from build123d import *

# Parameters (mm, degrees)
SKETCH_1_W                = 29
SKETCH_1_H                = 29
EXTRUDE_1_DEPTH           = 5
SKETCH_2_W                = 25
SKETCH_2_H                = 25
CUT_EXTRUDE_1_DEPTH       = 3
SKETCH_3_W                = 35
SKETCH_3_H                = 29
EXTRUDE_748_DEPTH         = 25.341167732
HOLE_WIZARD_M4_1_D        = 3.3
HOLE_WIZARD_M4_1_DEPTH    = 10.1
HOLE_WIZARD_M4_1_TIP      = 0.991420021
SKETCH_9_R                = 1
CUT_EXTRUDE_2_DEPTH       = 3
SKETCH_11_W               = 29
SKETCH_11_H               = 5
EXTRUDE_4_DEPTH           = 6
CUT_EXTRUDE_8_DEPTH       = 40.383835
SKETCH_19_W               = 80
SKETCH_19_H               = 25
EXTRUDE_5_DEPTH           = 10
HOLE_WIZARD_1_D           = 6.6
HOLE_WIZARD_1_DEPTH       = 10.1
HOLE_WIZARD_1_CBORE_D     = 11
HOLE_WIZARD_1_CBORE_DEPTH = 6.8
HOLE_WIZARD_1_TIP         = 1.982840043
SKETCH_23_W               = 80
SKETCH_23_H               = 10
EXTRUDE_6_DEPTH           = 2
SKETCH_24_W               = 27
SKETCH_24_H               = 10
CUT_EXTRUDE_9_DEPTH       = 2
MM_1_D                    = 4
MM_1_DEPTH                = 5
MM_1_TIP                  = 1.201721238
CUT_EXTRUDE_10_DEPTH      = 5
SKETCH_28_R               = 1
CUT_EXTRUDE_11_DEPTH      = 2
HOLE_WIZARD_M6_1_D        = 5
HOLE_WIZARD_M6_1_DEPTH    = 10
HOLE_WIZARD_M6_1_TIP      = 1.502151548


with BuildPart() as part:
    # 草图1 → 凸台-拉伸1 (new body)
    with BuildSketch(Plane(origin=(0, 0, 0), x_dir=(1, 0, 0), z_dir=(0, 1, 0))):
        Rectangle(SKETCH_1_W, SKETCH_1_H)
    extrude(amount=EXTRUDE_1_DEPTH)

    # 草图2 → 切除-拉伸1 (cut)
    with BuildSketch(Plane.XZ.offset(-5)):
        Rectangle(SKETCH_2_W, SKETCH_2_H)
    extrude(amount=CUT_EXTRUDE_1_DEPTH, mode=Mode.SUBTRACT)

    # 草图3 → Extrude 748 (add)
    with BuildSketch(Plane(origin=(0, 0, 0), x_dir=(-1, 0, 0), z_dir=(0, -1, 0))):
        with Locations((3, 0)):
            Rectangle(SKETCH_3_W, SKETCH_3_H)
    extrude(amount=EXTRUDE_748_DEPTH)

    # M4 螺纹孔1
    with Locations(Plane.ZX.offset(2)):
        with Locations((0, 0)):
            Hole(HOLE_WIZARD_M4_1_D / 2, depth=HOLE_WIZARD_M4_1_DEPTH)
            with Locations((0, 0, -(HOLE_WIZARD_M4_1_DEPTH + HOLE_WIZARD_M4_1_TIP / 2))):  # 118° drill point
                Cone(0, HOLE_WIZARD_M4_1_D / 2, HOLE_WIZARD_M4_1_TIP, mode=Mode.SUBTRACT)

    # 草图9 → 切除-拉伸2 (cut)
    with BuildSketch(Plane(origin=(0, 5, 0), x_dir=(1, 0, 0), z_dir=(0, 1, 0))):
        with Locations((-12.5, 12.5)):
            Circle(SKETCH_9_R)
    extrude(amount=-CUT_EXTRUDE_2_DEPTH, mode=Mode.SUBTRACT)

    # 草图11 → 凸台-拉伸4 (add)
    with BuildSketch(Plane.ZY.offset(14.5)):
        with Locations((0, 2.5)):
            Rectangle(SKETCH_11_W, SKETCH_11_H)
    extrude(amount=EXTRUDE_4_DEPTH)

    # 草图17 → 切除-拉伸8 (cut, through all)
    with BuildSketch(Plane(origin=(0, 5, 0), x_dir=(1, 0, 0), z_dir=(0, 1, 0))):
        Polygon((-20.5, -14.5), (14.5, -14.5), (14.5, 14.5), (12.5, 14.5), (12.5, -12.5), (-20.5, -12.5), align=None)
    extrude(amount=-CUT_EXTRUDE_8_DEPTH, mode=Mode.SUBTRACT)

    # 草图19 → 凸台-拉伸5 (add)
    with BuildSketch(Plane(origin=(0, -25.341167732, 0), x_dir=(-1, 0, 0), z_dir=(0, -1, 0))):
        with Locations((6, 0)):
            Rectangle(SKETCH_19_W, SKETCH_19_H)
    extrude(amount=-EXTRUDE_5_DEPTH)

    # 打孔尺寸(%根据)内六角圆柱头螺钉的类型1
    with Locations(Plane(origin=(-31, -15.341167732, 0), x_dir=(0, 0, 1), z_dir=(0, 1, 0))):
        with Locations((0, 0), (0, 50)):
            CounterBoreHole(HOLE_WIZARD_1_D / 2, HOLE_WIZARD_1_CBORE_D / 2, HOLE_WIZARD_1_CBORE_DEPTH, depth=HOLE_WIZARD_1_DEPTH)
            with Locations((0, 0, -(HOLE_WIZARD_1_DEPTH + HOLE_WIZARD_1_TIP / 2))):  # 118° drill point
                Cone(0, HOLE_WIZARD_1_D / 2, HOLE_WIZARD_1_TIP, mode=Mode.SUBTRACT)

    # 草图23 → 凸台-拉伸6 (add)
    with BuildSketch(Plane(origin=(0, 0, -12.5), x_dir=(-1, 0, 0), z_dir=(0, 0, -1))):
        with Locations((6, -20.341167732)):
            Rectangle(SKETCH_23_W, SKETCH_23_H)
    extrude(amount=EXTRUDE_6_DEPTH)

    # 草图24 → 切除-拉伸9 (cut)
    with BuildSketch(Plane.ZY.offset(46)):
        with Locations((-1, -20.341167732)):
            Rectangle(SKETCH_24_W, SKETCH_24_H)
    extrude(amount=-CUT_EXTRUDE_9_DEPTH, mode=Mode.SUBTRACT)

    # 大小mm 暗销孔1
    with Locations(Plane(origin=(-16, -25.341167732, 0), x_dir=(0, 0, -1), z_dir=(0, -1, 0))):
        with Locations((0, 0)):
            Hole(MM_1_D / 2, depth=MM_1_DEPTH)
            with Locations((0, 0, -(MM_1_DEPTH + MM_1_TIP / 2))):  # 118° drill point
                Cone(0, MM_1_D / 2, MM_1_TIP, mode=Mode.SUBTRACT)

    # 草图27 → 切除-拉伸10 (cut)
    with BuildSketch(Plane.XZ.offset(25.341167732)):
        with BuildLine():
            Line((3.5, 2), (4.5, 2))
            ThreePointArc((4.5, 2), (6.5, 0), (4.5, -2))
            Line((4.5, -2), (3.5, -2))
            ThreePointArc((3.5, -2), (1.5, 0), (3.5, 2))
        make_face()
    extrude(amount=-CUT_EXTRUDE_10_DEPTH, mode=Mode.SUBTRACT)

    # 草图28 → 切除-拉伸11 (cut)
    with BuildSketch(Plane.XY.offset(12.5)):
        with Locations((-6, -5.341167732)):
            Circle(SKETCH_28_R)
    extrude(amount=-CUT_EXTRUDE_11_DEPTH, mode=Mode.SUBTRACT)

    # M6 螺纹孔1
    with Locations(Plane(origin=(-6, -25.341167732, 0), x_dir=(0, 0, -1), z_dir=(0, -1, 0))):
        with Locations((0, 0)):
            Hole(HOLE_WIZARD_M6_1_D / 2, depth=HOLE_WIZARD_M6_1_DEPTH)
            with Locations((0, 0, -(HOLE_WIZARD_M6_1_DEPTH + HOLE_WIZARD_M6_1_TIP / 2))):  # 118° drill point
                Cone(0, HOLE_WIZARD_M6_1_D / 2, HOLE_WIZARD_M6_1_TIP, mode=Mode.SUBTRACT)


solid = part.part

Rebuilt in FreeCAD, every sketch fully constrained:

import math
import FreeCAD as App
import Part
import Sketcher

V = App.Vector


def add_polygon(sketch, points):
    """Adds a closed chain of lines whose ends are joined by coincident constraints."""
    first, n = sketch.GeometryCount, len(points)
    for a, b in zip(points, points[1:] + points[:1]):
        sketch.addGeometry(Part.LineSegment(App.Vector(*a, 0), App.Vector(*b, 0)), False)
    for i in range(n):
        sketch.addConstraint(Sketcher.Constraint("Coincident", first + i, 2, first + (i + 1) % n, 1))

doc = App.newDocument("Part")
body = doc.addObject("PartDesign::Body", "Body")

# Sketch on XZ plane
sketch1 = body.newObject("Sketcher::SketchObject", "Sketch")
sketch1.AttachmentSupport = (doc.getObject("XZ_Plane"), [""])
sketch1.MapMode = "FlatFace"
add_polygon(sketch1, [(-14, -14), (-14, 14), (14, 14), (14, -14)])  # lines 0-3
sketch1.addConstraint(Sketcher.Constraint("Vertical", 0))
sketch1.addConstraint(Sketcher.Constraint("Horizontal", 1))
sketch1.addConstraint(Sketcher.Constraint("Vertical", 2))
sketch1.addConstraint(Sketcher.Constraint("Horizontal", 3))
sketch1.addConstraint(Sketcher.Constraint("Symmetric", 0, 2, 2, 2, -1, 1))
sketch1.addConstraint(Sketcher.Constraint("Equal", 3, 0))
sketch1.addConstraint(Sketcher.Constraint("DistanceX", 1, 1, 1, 2, 29.0))
pad1 = body.newObject("PartDesign::Pad", "Pad")
pad1.Profile = sketch1
pad1.Length = 5
pad1.Reversed = True

# Sketch on XZ plane
sketch2 = body.newObject("Sketcher::SketchObject", "Sketch001")
sketch2.AttachmentSupport = (doc.getObject("XZ_Plane"), [""])
sketch2.MapMode = "FlatFace"
sketch2.AttachmentOffset = App.Placement(V(0, 0, -5), App.Rotation())
add_polygon(sketch2, [(-12, 12), (-12, -12), (12, -12), (12, 12)])  # lines 0-3
sketch2.addConstraint(Sketcher.Constraint("Vertical", 0))
sketch2.addConstraint(Sketcher.Constraint("Horizontal", 1))
sketch2.addConstraint(Sketcher.Constraint("Vertical", 2))
sketch2.addConstraint(Sketcher.Constraint("Horizontal", 3))
sketch2.addConstraint(Sketcher.Constraint("Symmetric", 0, 2, 2, 2, -1, 1))
sketch2.addConstraint(Sketcher.Constraint("Equal", 3, 0))
sketch2.addConstraint(Sketcher.Constraint("DistanceX", 1, 1, 1, 2, 25.0))
pocket1 = body.newObject("PartDesign::Pocket", "Pocket")
pocket1.Profile = sketch2
pocket1.Length = 3
pocket1.Reversed = True

# Sketch on XZ plane
sketch3 = body.newObject("Sketcher::SketchObject", "Sketch002")
sketch3.AttachmentSupport = (doc.getObject("XZ_Plane"), [""])
sketch3.MapMode = "FlatFace"
add_polygon(sketch3, [(14, -14), (14, 14), (-20, 14), (-20, -14)])  # lines 0-3
sketch3.addConstraint(Sketcher.Constraint("Vertical", 0))
sketch3.addConstraint(Sketcher.Constraint("Horizontal", 1))
sketch3.addConstraint(Sketcher.Constraint("Vertical", 2))
sketch3.addConstraint(Sketcher.Constraint("Horizontal", 3))
sketch3.addConstraint(Sketcher.Constraint("DistanceX", 1, 2, 1, 1, 35.0))
sketch3.addConstraint(Sketcher.Constraint("DistanceY", 0, 1, 0, 2, 29.0))
sketch3.addConstraint(Sketcher.Constraint("DistanceX", -1, 1, 0, 2, 14.5))
sketch3.addConstraint(Sketcher.Constraint("DistanceY", -1, 1, 0, 2, 14.5))
pad2 = body.newObject("PartDesign::Pad", "Pad001")
pad2.Profile = sketch3
pad2.Length = 25.341168

# Sketch on XZ plane
sketch4 = body.newObject("Sketcher::SketchObject", "Sketch003")
sketch4.AttachmentSupport = (doc.getObject("XZ_Plane"), [""])
sketch4.MapMode = "FlatFace"
sketch4.AttachmentOffset = App.Placement(V(0, 0, -2), App.Rotation())
sketch4.addGeometry(Part.Circle(V(0, 0, 0), V(0, 0, 1), 1.6), False)
sketch4.addConstraint(Sketcher.Constraint("Coincident", 0, 3, -1, 1))
sketch4.addConstraint(Sketcher.Constraint("Diameter", 0, 3.3))
doc.recompute()
hole = body.newObject("PartDesign::Hole", "Hole")
hole.Profile = sketch4
hole.ThreadType = "None"
hole.Diameter = 3.3
hole.DepthType = "Dimension"
hole.Depth = 10.1
hole.DrillPoint = "Angled"
hole.DrillPointAngle = 118
hole.Reversed = True

# Sketch on XZ plane
sketch5 = body.newObject("Sketcher::SketchObject", "Sketch004")
sketch5.AttachmentSupport = (doc.getObject("XZ_Plane"), [""])
sketch5.MapMode = "FlatFace"
sketch5.AttachmentOffset = App.Placement(V(0, 0, -5), App.Rotation())
sketch5.addGeometry(Part.Circle(V(-12.5, -12.5, 0), V(0, 0, 1), 1), False)
sketch5.addConstraint(Sketcher.Constraint("Diameter", 0, 2.0))
sketch5.addConstraint(Sketcher.Constraint("DistanceX", 0, 3, -1, 1, 12.5))
sketch5.addConstraint(Sketcher.Constraint("DistanceY", 0, 3, -1, 1, 12.5))
pocket2 = body.newObject("PartDesign::Pocket", "Pocket001")
pocket2.Profile = sketch5
pocket2.Length = 3
pocket2.Reversed = True

# Sketch on YZ plane
sketch6 = body.newObject("Sketcher::SketchObject", "Sketch005")
sketch6.AttachmentSupport = (doc.getObject("YZ_Plane"), [""])
sketch6.MapMode = "FlatFace"
sketch6.AttachmentOffset = App.Placement(V(0, 0, -14.5), App.Rotation())
add_polygon(sketch6, [(5, -14), (0, -14), (0, 14), (5, 14)])  # lines 0-3
sketch6.addConstraint(Sketcher.Constraint("Horizontal", 0))
sketch6.addConstraint(Sketcher.Constraint("Vertical", 1))
sketch6.addConstraint(Sketcher.Constraint("Horizontal", 2))
sketch6.addConstraint(Sketcher.Constraint("Vertical", 3))
sketch6.addConstraint(Sketcher.Constraint("Symmetric", 0, 2, 1, 2, -1, 1))
sketch6.addConstraint(Sketcher.Constraint("DistanceX", 0, 2, 0, 1, 5.0))
sketch6.addConstraint(Sketcher.Constraint("DistanceY", 1, 1, 1, 2, 29.0))
pad3 = body.newObject("PartDesign::Pad", "Pad002")
pad3.Profile = sketch6
pad3.Length = 6
pad3.Reversed = True

# Sketch on XZ plane
sketch7 = body.newObject("Sketcher::SketchObject", "Sketch006")
sketch7.AttachmentSupport = (doc.getObject("XZ_Plane"), [""])
sketch7.MapMode = "FlatFace"
sketch7.AttachmentOffset = App.Placement(V(0, 0, -5), App.Rotation())
add_polygon(sketch7, [(-20.5, 14.5), (14.5, 14.5), (14.5, -14.5), (12.5, -14.5), (12.5, 12.5), (-20.5, 12.5)])  # lines 0-5
sketch7.addConstraint(Sketcher.Constraint("Horizontal", 0))
sketch7.addConstraint(Sketcher.Constraint("Vertical", 1))
sketch7.addConstraint(Sketcher.Constraint("Horizontal", 2))
sketch7.addConstraint(Sketcher.Constraint("Vertical", 3))
sketch7.addConstraint(Sketcher.Constraint("Horizontal", 4))
sketch7.addConstraint(Sketcher.Constraint("Vertical", 5))
sketch7.addConstraint(Sketcher.Constraint("Equal", 2, 5))
sketch7.addConstraint(Sketcher.Constraint("DistanceX", 0, 1, 0, 2, 35.0))
sketch7.addConstraint(Sketcher.Constraint("DistanceX", 2, 2, 2, 1, 2.0))
sketch7.addConstraint(Sketcher.Constraint("DistanceY", 1, 2, 1, 1, 29.0))
sketch7.addConstraint(Sketcher.Constraint("DistanceX", -1, 1, 0, 2, 14.5))
sketch7.addConstraint(Sketcher.Constraint("DistanceY", -1, 1, 0, 2, 14.5))
pocket3 = body.newObject("PartDesign::Pocket", "Pocket002")
pocket3.Profile = sketch7
pocket3.Type = "ThroughAll"
pocket3.Reversed = True

# Sketch on XZ plane
sketch8 = body.newObject("Sketcher::SketchObject", "Sketch007")
sketch8.AttachmentSupport = (doc.getObject("XZ_Plane"), [""])
sketch8.MapMode = "FlatFace"
sketch8.AttachmentOffset = App.Placement(V(0, 0, 25.341168), App.Rotation())
add_polygon(sketch8, [(34, -12), (34, 12), (-46, 12), (-46, -12)])  # lines 0-3
sketch8.addConstraint(Sketcher.Constraint("Vertical", 0))
sketch8.addConstraint(Sketcher.Constraint("Horizontal", 1))
sketch8.addConstraint(Sketcher.Constraint("Vertical", 2))
sketch8.addConstraint(Sketcher.Constraint("Horizontal", 3))
sketch8.addConstraint(Sketcher.Constraint("DistanceX", 1, 2, 1, 1, 80.0))
sketch8.addConstraint(Sketcher.Constraint("DistanceY", 0, 1, 0, 2, 25.0))
sketch8.addConstraint(Sketcher.Constraint("DistanceX", -1, 1, 0, 2, 34.0))
sketch8.addConstraint(Sketcher.Constraint("DistanceY", -1, 1, 0, 2, 12.5))
pad4 = body.newObject("PartDesign::Pad", "Pad003")
pad4.Profile = sketch8
pad4.Length = 10
pad4.Reversed = True

# Sketch on XZ plane
sketch9 = body.newObject("Sketcher::SketchObject", "Sketch008")
sketch9.AttachmentSupport = (doc.getObject("XZ_Plane"), [""])
sketch9.MapMode = "FlatFace"
sketch9.AttachmentOffset = App.Placement(V(0, 0, 15.341168), App.Rotation())
sketch9.addGeometry(Part.Circle(V(-31, 0, 0), V(0, 0, 1), 3.3), False)
sketch9.addGeometry(Part.Circle(V(19, 0, 0), V(0, 0, 1), 3.3), False)
sketch9.addConstraint(Sketcher.Constraint("Equal", 0, 1))
sketch9.addConstraint(Sketcher.Constraint("PointOnObject", 0, 3, -1))
sketch9.addConstraint(Sketcher.Constraint("PointOnObject", 1, 3, -1))
sketch9.addConstraint(Sketcher.Constraint("Diameter", 0, 6.6))
sketch9.addConstraint(Sketcher.Constraint("DistanceX", 0, 3, -1, 1, 31.0))
sketch9.addConstraint(Sketcher.Constraint("DistanceX", -1, 1, 1, 3, 19.0))
doc.recompute()
hole2 = body.newObject("PartDesign::Hole", "Hole001")
hole2.Profile = sketch9
hole2.ThreadType = "None"
hole2.Diameter = 6.6
hole2.DepthType = "Dimension"
hole2.Depth = 10.1
hole2.DrillPoint = "Angled"
hole2.DrillPointAngle = 118
hole2.HoleCutType = "Counterbore"
hole2.HoleCutDiameter = 11
hole2.HoleCutDepth = 6.8
hole2.Reversed = True

# Sketch on XY plane
sketch10 = body.newObject("Sketcher::SketchObject", "Sketch009")
sketch10.AttachmentSupport = (doc.getObject("XY_Plane"), [""])
sketch10.MapMode = "FlatFace"
sketch10.AttachmentOffset = App.Placement(V(0, 0, -12.5), App.Rotation())
add_polygon(sketch10, [(34, -15), (34, -25), (-46, -25), (-46, -15)])  # lines 0-3
sketch10.addConstraint(Sketcher.Constraint("Vertical", 0))
sketch10.addConstraint(Sketcher.Constraint("Horizontal", 1))
sketch10.addConstraint(Sketcher.Constraint("Vertical", 2))
sketch10.addConstraint(Sketcher.Constraint("Horizontal", 3))
sketch10.addConstraint(Sketcher.Constraint("DistanceX", 1, 2, 1, 1, 80.0))
sketch10.addConstraint(Sketcher.Constraint("DistanceY", 0, 2, 0, 1, 10.0))
sketch10.addConstraint(Sketcher.Constraint("DistanceX", -1, 1, 0, 2, 34.0))
sketch10.addConstraint(Sketcher.Constraint("DistanceY", 0, 2, -1, 1, 25.341168))
pad5 = body.newObject("PartDesign::Pad", "Pad004")
pad5.Profile = sketch10
pad5.Length = 2
pad5.Reversed = True

# Sketch on YZ plane
sketch11 = body.newObject("Sketcher::SketchObject", "Sketch010")
sketch11.AttachmentSupport = (doc.getObject("YZ_Plane"), [""])
sketch11.MapMode = "FlatFace"
sketch11.AttachmentOffset = App.Placement(V(0, 0, -46), App.Rotation())
add_polygon(sketch11, [(-15, -14), (-25, -14), (-25, 12), (-15, 12)])  # lines 0-3
sketch11.addConstraint(Sketcher.Constraint("Horizontal", 0))
sketch11.addConstraint(Sketcher.Constraint("Vertical", 1))
sketch11.addConstraint(Sketcher.Constraint("Horizontal", 2))
sketch11.addConstraint(Sketcher.Constraint("Vertical", 3))
sketch11.addConstraint(Sketcher.Constraint("DistanceX", 0, 2, 0, 1, 10.0))
sketch11.addConstraint(Sketcher.Constraint("DistanceY", 1, 1, 1, 2, 27.0))
sketch11.addConstraint(Sketcher.Constraint("DistanceY", 0, 2, -1, 1, 14.5))
sketch11.addConstraint(Sketcher.Constraint("DistanceX", 0, 2, -1, 1, 25.341168))
pocket4 = body.newObject("PartDesign::Pocket", "Pocket003")
pocket4.Profile = sketch11
pocket4.Length = 2
pocket4.Reversed = True

# Sketch on XZ plane
sketch12 = body.newObject("Sketcher::SketchObject", "Sketch011")
sketch12.AttachmentSupport = (doc.getObject("XZ_Plane"), [""])
sketch12.MapMode = "FlatFace"
sketch12.AttachmentOffset = App.Placement(V(0, 0, 25.341168), App.Rotation())
sketch12.addGeometry(Part.Circle(V(-16, 0, 0), V(0, 0, 1), 2), False)
sketch12.addConstraint(Sketcher.Constraint("PointOnObject", 0, 3, -1))
sketch12.addConstraint(Sketcher.Constraint("Diameter", 0, 4.0))
sketch12.addConstraint(Sketcher.Constraint("DistanceX", 0, 3, -1, 1, 16.0))
doc.recompute()
hole3 = body.newObject("PartDesign::Hole", "Hole002")
hole3.Profile = sketch12
hole3.ThreadType = "None"
hole3.Diameter = 4
hole3.DepthType = "Dimension"
hole3.Depth = 5
hole3.DrillPoint = "Angled"
hole3.DrillPointAngle = 118

# Sketch on XZ plane
sketch13 = body.newObject("Sketcher::SketchObject", "Sketch012")
sketch13.AttachmentSupport = (doc.getObject("XZ_Plane"), [""])
sketch13.MapMode = "FlatFace"
sketch13.AttachmentOffset = App.Placement(V(0, 0, 25.341168), App.Rotation())
sketch13.addGeometry(Part.LineSegment(V(4.5, 2, 0), V(3.5, 2, 0)), False)
sketch13.addGeometry(Part.ArcOfCircle(Part.Circle(V(3.5, 0, 0), V(0, 0, 1), 2), math.radians(90), math.radians(270)), False)
sketch13.addGeometry(Part.LineSegment(V(3.5, -2, 0), V(4.5, -2, 0)), False)
sketch13.addGeometry(Part.ArcOfCircle(Part.Circle(V(4.5, 0, 0), V(0, 0, 1), 2), math.radians(-90), math.radians(90)), False)
sketch13.addConstraint(Sketcher.Constraint("Tangent", 0, 2, 1, 1))
sketch13.addConstraint(Sketcher.Constraint("Tangent", 1, 2, 2, 1))
sketch13.addConstraint(Sketcher.Constraint("Tangent", 2, 2, 3, 1))
sketch13.addConstraint(Sketcher.Constraint("Tangent", 3, 2, 0, 1))
sketch13.addConstraint(Sketcher.Constraint("Horizontal", 0))
sketch13.addConstraint(Sketcher.Constraint("Horizontal", 2))
sketch13.addConstraint(Sketcher.Constraint("PointOnObject", 1, 3, -1))
sketch13.addConstraint(Sketcher.Constraint("Radius", 1, 2.0))
sketch13.addConstraint(Sketcher.Constraint("DistanceX", 0, 2, 0, 1, 1.0))
sketch13.addConstraint(Sketcher.Constraint("DistanceX", -1, 1, 1, 3, 3.5))
pocket5 = body.newObject("PartDesign::Pocket", "Pocket004")
pocket5.Profile = sketch13
pocket5.Length = 5

# Sketch on XY plane
sketch14 = body.newObject("Sketcher::SketchObject", "Sketch013")
sketch14.AttachmentSupport = (doc.getObject("XY_Plane"), [""])
sketch14.MapMode = "FlatFace"
sketch14.AttachmentOffset = App.Placement(V(0, 0, 12.5), App.Rotation())
sketch14.addGeometry(Part.Circle(V(-6, -5.3, 0), V(0, 0, 1), 1), False)
sketch14.addConstraint(Sketcher.Constraint("Diameter", 0, 2.0))
sketch14.addConstraint(Sketcher.Constraint("DistanceX", 0, 3, -1, 1, 6.0))
sketch14.addConstraint(Sketcher.Constraint("DistanceY", 0, 3, -1, 1, 5.341168))
pocket6 = body.newObject("PartDesign::Pocket", "Pocket005")
pocket6.Profile = sketch14
pocket6.Length = 2

# Sketch on XZ plane
sketch15 = body.newObject("Sketcher::SketchObject", "Sketch014")
sketch15.AttachmentSupport = (doc.getObject("XZ_Plane"), [""])
sketch15.MapMode = "FlatFace"
sketch15.AttachmentOffset = App.Placement(V(0, 0, 25.341168), App.Rotation())
sketch15.addGeometry(Part.Circle(V(-6, 0, 0), V(0, 0, 1), 2.5), False)
sketch15.addConstraint(Sketcher.Constraint("PointOnObject", 0, 3, -1))
sketch15.addConstraint(Sketcher.Constraint("Diameter", 0, 5.0))
sketch15.addConstraint(Sketcher.Constraint("DistanceX", 0, 3, -1, 1, 6.0))
doc.recompute()
hole4 = body.newObject("PartDesign::Hole", "Hole003")
hole4.Profile = sketch15
hole4.ThreadType = "None"
hole4.Diameter = 5
hole4.DepthType = "Dimension"
hole4.Depth = 10
hole4.DrillPoint = "Angled"
hole4.DrillPointAngle = 118

doc.recompute()
